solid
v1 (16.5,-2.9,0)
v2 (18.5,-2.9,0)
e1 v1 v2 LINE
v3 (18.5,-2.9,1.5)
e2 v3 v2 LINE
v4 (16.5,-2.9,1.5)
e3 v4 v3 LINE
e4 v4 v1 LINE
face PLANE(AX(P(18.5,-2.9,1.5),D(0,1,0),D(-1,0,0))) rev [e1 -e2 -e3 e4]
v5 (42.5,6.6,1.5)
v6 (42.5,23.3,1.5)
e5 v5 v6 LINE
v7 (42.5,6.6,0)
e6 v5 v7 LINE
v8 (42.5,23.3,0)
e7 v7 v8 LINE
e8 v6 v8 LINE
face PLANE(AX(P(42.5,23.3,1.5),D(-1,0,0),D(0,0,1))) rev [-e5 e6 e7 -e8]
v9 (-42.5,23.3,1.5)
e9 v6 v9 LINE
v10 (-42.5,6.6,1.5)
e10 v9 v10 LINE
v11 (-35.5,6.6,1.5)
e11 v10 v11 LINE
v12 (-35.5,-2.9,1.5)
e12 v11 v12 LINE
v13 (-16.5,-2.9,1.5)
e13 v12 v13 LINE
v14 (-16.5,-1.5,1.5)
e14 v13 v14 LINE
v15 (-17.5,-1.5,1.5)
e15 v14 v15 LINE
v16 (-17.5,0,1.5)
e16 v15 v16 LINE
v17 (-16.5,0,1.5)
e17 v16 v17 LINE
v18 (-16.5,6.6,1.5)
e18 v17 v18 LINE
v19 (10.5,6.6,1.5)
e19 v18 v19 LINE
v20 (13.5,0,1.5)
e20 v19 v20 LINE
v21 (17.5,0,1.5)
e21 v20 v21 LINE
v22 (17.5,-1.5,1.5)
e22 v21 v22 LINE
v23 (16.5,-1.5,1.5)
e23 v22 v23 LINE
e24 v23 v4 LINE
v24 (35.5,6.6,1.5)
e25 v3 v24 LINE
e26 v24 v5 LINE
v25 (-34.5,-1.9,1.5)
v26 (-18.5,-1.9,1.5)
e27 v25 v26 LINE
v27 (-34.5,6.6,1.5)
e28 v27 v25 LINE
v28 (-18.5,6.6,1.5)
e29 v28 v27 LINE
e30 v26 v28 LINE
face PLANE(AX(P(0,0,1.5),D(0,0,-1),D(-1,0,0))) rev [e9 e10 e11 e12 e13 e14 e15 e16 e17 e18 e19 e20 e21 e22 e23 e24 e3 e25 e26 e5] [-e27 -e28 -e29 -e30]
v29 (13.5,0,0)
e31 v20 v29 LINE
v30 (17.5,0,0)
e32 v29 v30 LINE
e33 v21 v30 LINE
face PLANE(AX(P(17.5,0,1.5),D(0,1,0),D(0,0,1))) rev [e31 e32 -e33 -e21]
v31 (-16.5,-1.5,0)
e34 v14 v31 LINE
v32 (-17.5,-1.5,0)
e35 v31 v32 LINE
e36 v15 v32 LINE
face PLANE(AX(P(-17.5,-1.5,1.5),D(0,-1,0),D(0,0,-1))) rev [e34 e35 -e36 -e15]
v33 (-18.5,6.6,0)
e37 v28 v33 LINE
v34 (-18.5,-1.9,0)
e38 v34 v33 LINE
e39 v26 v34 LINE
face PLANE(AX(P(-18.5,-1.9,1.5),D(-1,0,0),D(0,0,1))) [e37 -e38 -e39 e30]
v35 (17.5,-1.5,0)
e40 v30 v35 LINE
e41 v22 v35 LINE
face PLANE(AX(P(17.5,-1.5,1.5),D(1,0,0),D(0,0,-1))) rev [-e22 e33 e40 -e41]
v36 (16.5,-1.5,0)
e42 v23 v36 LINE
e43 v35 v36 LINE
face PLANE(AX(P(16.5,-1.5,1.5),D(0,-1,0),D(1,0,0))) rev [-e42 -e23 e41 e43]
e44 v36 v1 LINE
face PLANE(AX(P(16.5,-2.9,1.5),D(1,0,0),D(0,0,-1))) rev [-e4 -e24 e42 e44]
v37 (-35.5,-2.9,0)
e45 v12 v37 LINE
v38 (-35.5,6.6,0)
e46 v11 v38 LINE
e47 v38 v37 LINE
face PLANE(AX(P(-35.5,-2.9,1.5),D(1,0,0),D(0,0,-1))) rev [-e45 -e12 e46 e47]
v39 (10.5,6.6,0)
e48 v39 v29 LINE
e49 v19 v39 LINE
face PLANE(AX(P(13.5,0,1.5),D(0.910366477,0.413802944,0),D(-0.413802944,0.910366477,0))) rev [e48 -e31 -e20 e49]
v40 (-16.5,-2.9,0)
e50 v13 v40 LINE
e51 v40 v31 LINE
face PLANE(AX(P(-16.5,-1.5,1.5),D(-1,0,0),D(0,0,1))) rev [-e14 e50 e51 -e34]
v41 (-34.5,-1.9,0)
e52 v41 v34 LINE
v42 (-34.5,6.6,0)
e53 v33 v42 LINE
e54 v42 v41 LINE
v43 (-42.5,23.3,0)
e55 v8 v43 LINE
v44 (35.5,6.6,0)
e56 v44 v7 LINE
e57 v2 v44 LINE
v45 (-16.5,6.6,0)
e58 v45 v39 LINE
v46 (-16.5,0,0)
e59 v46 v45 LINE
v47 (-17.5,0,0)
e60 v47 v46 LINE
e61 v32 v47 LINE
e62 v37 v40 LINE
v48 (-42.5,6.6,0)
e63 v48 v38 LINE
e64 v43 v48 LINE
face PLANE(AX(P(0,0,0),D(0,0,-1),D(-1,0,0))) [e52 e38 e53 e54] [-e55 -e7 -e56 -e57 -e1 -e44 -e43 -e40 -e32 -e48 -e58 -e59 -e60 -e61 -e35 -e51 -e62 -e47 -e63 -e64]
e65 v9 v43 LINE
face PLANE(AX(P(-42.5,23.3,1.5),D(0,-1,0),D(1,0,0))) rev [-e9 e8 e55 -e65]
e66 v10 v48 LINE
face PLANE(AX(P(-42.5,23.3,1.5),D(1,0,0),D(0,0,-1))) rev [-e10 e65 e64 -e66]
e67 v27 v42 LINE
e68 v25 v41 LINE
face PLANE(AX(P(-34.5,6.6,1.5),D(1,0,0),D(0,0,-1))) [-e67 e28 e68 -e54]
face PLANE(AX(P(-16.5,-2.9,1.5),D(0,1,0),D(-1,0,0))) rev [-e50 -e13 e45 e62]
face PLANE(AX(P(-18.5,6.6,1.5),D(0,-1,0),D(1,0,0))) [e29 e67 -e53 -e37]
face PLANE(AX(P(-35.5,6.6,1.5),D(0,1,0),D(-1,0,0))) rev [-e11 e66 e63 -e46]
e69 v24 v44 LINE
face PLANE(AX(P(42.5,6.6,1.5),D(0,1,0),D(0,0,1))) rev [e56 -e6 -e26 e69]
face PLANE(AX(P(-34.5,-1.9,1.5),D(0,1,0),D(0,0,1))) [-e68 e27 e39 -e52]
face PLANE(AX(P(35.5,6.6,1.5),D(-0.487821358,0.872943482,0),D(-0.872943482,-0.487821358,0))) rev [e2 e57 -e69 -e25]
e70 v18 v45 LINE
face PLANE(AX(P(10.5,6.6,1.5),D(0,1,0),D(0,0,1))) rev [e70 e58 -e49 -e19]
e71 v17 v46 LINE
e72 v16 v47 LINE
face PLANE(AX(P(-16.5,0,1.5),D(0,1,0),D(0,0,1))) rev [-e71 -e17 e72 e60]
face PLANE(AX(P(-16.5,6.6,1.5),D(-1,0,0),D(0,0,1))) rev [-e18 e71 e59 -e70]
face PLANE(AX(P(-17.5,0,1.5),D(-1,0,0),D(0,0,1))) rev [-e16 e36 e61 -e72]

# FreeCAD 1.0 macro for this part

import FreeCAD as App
import Part
import Sketcher

V = App.Vector
Q = App.Units.Quantity

doc = App.newDocument("Part")
body = doc.addObject("PartDesign::Body", "Body")

sketch1 = body.newObject("Sketcher::SketchObject", "Sketch")
sketch1.AttachmentSupport = (doc.getObject("XY_Plane"), [""])
sketch1.MapMode = "FlatFace"
sketch1.addGeometry([
    Part.LineSegment(V(42.5, 23.3, 0), V(-42.5, 23.3, 0)),
    Part.LineSegment(V(-42.5, 23.3, 0), V(-42.5, 6.6, 0)),
    Part.LineSegment(V(-42.5, 6.6, 0), V(-35.5, 6.6, 0)),
    Part.LineSegment(V(-35.5, 6.6, 0), V(-35.5, -2.9, 0)),
    Part.LineSegment(V(-35.5, -2.9, 0), V(-16.5, -2.9, 0)),
    Part.LineSegment(V(-16.5, -2.9, 0), V(-16.5, -1.5, 0)),
    Part.LineSegment(V(-16.5, -1.5, 0), V(-17.5, -1.5, 0)),
    Part.LineSegment(V(-17.5, -1.5, 0), V(-17.5, 0, 0)),
    Part.LineSegment(V(-17.5, 0, 0), V(-16.5, 0, 0)),
    Part.LineSegment(V(-16.5, 0, 0), V(-16.5, 6.6, 0)),
    Part.LineSegment(V(-16.5, 6.6, 0), V(10.5, 6.6, 0)),
    Part.LineSegment(V(10.5, 6.6, 0), V(13.5, 0, 0)),
    Part.LineSegment(V(13.5, 0, 0), V(17.5, 0, 0)),
    Part.LineSegment(V(17.5, 0, 0), V(17.5, -1.5, 0)),
    Part.LineSegment(V(17.5, -1.5, 0), V(16.5, -1.5, 0)),
    Part.LineSegment(V(16.5, -1.5, 0), V(16.5, -2.9, 0)),
    Part.LineSegment(V(16.5, -2.9, 0), V(18.5, -2.9, 0)),
    Part.LineSegment(V(18.5, -2.9, 0), V(35.5, 6.6, 0)),
    Part.LineSegment(V(35.5, 6.6, 0), V(42.5, 6.6, 0)),
    Part.LineSegment(V(42.5, 6.6, 0), V(42.5, 23.3, 0)),
    Part.LineSegment(V(-34.5, -1.9, 0), V(-34.5, 6.6, 0)),
    Part.LineSegment(V(-34.5, 6.6, 0), V(-18.5, 6.6, 0)),
    Part.LineSegment(V(-18.5, 6.6, 0), V(-18.5, -1.9, 0)),
    Part.LineSegment(V(-18.5, -1.9, 0), V(-34.5, -1.9, 0)),
], False)
sketch1.addConstraint([
    Sketcher.Constraint("Coincident", 0, 2, 1, 1),
    Sketcher.Constraint("Coincident", 1, 2, 2, 1),
    Sketcher.Constraint("Coincident", 2, 2, 3, 1),
    Sketcher.Constraint("Coincident", 3, 2, 4, 1),
    Sketcher.Constraint("Coincident", 4, 2, 5, 1),
    Sketcher.Constraint("Coincident", 5, 2, 6, 1),
    Sketcher.Constraint("Coincident", 6, 2, 7, 1),
    Sketcher.Constraint("Coincident", 7, 2, 8, 1),
    Sketcher.Constraint("Coincident", 8, 2, 9, 1),
    Sketcher.Constraint("Coincident", 9, 2, 10, 1),
    Sketcher.Constraint("Coincident", 10, 2, 11, 1),
    Sketcher.Constraint("Coincident", 11, 2, 12, 1),
    Sketcher.Constraint("Coincident", 12, 2, 13, 1),
    Sketcher.Constraint("Coincident", 13, 2, 14, 1),
    Sketcher.Constraint("Coincident", 14, 2, 15, 1),
    Sketcher.Constraint("Coincident", 15, 2, 16, 1),
    Sketcher.Constraint("Coincident", 16, 2, 17, 1),
    Sketcher.Constraint("Coincident", 17, 2, 18, 1),
    Sketcher.Constraint("Coincident", 18, 2, 19, 1),
    Sketcher.Constraint("Coincident", 19, 2, 0, 1),
    Sketcher.Constraint("Coincident", 20, 2, 21, 1),
    Sketcher.Constraint("Coincident", 21, 2, 22, 1),
    Sketcher.Constraint("Coincident", 22, 2, 23, 1),
    Sketcher.Constraint("Coincident", 23, 2, 20, 1),
    Sketcher.Constraint("Horizontal", 0),
    Sketcher.Constraint("Vertical", 1),
    Sketcher.Constraint("Horizontal", 2),
    Sketcher.Constraint("Vertical", 3),
    Sketcher.Constraint("Horizontal", 4),
    Sketcher.Constraint("Vertical", 5),
    Sketcher.Constraint("Horizontal", 6),
    Sketcher.Constraint("Vertical", 7),
    Sketcher.Constraint("Horizontal", 8),
    Sketcher.Constraint("Vertical", 9),
    Sketcher.Constraint("Horizontal", 10),
    Sketcher.Constraint("Horizontal", 12),
    Sketcher.Constraint("Vertical", 13),
    Sketcher.Constraint("Horizontal", 14),
    Sketcher.Constraint("Vertical", 15),
    Sketcher.Constraint("Horizontal", 16),
    Sketcher.Constraint("Horizontal", 18),
    Sketcher.Constraint("Vertical", 19),
    Sketcher.Constraint("Vertical", 20),
    Sketcher.Constraint("Horizontal", 21),
    Sketcher.Constraint("Vertical", 22),
    Sketcher.Constraint("Horizontal", 23),
    Sketcher.Constraint("Symmetric", 7, 2, 12, 2, -1, 1),
    Sketcher.Constraint("Symmetric", 5, 2, 14, 2, -2),
    Sketcher.Constraint("Symmetric", 2, 2, 17, 2, -2),
    Sketcher.Constraint("PointOnObject", 7, 2, -1),
    Sketcher.Constraint("Horizontal", 2, 2, 9, 2),
    Sketcher.Constraint("Horizontal", 4, 2, 15, 2),
    Sketcher.Constraint("Horizontal", 18, 2, 20, 2),
    Sketcher.Constraint("Vertical", 5, 2, 8, 2),
    Sketcher.Constraint("Equal", 2, 18),
    Sketcher.Constraint("DistanceX", 0, 2, 0, 1, Q("85 mm")),
    Sketcher.Constraint("DistanceX", 2, 1, 2, 2, Q("7 mm")),
    Sketcher.Constraint("DistanceX", 4, 1, 4, 2, Q("19 mm")),
    Sketcher.Constraint("DistanceX", 6, 2, 6, 1, Q("1 mm")),
    Sketcher.Constraint("DistanceX", 10, 1, 10, 2, Q("27 mm")),
    Sketcher.Constraint("DistanceX", 12, 1, 12, 2, Q("4 mm")),
    Sketcher.Constraint("DistanceX", 16, 1, 16, 2, Q("2 mm")),
    Sketcher.Constraint("DistanceX", 21, 1, 21, 2, Q("16 mm")),
    Sketcher.Constraint("DistanceY", 1, 2, 1, 1, Q("16.7 mm")),
    Sketcher.Constraint("DistanceY", 3, 2, 3, 1, Q("9.5 mm")),
    Sketcher.Constraint("DistanceY", 5, 1, 5, 2, Q("1.4 mm")),
    Sketcher.Constraint("DistanceY", 7, 1, 7, 2, Q("1.5 mm")),
    Sketcher.Constraint("DistanceY", 20, 1, 20, 2, Q("8.5 mm")),
    Sketcher.Constraint("DistanceX", 2, 2, 20, 2, Q("1 mm")),
])
pad1 = body.newObject("PartDesign::Pad", "Pad")
pad1.Profile = sketch1
pad1.Length = 1.5

doc.recompute()
